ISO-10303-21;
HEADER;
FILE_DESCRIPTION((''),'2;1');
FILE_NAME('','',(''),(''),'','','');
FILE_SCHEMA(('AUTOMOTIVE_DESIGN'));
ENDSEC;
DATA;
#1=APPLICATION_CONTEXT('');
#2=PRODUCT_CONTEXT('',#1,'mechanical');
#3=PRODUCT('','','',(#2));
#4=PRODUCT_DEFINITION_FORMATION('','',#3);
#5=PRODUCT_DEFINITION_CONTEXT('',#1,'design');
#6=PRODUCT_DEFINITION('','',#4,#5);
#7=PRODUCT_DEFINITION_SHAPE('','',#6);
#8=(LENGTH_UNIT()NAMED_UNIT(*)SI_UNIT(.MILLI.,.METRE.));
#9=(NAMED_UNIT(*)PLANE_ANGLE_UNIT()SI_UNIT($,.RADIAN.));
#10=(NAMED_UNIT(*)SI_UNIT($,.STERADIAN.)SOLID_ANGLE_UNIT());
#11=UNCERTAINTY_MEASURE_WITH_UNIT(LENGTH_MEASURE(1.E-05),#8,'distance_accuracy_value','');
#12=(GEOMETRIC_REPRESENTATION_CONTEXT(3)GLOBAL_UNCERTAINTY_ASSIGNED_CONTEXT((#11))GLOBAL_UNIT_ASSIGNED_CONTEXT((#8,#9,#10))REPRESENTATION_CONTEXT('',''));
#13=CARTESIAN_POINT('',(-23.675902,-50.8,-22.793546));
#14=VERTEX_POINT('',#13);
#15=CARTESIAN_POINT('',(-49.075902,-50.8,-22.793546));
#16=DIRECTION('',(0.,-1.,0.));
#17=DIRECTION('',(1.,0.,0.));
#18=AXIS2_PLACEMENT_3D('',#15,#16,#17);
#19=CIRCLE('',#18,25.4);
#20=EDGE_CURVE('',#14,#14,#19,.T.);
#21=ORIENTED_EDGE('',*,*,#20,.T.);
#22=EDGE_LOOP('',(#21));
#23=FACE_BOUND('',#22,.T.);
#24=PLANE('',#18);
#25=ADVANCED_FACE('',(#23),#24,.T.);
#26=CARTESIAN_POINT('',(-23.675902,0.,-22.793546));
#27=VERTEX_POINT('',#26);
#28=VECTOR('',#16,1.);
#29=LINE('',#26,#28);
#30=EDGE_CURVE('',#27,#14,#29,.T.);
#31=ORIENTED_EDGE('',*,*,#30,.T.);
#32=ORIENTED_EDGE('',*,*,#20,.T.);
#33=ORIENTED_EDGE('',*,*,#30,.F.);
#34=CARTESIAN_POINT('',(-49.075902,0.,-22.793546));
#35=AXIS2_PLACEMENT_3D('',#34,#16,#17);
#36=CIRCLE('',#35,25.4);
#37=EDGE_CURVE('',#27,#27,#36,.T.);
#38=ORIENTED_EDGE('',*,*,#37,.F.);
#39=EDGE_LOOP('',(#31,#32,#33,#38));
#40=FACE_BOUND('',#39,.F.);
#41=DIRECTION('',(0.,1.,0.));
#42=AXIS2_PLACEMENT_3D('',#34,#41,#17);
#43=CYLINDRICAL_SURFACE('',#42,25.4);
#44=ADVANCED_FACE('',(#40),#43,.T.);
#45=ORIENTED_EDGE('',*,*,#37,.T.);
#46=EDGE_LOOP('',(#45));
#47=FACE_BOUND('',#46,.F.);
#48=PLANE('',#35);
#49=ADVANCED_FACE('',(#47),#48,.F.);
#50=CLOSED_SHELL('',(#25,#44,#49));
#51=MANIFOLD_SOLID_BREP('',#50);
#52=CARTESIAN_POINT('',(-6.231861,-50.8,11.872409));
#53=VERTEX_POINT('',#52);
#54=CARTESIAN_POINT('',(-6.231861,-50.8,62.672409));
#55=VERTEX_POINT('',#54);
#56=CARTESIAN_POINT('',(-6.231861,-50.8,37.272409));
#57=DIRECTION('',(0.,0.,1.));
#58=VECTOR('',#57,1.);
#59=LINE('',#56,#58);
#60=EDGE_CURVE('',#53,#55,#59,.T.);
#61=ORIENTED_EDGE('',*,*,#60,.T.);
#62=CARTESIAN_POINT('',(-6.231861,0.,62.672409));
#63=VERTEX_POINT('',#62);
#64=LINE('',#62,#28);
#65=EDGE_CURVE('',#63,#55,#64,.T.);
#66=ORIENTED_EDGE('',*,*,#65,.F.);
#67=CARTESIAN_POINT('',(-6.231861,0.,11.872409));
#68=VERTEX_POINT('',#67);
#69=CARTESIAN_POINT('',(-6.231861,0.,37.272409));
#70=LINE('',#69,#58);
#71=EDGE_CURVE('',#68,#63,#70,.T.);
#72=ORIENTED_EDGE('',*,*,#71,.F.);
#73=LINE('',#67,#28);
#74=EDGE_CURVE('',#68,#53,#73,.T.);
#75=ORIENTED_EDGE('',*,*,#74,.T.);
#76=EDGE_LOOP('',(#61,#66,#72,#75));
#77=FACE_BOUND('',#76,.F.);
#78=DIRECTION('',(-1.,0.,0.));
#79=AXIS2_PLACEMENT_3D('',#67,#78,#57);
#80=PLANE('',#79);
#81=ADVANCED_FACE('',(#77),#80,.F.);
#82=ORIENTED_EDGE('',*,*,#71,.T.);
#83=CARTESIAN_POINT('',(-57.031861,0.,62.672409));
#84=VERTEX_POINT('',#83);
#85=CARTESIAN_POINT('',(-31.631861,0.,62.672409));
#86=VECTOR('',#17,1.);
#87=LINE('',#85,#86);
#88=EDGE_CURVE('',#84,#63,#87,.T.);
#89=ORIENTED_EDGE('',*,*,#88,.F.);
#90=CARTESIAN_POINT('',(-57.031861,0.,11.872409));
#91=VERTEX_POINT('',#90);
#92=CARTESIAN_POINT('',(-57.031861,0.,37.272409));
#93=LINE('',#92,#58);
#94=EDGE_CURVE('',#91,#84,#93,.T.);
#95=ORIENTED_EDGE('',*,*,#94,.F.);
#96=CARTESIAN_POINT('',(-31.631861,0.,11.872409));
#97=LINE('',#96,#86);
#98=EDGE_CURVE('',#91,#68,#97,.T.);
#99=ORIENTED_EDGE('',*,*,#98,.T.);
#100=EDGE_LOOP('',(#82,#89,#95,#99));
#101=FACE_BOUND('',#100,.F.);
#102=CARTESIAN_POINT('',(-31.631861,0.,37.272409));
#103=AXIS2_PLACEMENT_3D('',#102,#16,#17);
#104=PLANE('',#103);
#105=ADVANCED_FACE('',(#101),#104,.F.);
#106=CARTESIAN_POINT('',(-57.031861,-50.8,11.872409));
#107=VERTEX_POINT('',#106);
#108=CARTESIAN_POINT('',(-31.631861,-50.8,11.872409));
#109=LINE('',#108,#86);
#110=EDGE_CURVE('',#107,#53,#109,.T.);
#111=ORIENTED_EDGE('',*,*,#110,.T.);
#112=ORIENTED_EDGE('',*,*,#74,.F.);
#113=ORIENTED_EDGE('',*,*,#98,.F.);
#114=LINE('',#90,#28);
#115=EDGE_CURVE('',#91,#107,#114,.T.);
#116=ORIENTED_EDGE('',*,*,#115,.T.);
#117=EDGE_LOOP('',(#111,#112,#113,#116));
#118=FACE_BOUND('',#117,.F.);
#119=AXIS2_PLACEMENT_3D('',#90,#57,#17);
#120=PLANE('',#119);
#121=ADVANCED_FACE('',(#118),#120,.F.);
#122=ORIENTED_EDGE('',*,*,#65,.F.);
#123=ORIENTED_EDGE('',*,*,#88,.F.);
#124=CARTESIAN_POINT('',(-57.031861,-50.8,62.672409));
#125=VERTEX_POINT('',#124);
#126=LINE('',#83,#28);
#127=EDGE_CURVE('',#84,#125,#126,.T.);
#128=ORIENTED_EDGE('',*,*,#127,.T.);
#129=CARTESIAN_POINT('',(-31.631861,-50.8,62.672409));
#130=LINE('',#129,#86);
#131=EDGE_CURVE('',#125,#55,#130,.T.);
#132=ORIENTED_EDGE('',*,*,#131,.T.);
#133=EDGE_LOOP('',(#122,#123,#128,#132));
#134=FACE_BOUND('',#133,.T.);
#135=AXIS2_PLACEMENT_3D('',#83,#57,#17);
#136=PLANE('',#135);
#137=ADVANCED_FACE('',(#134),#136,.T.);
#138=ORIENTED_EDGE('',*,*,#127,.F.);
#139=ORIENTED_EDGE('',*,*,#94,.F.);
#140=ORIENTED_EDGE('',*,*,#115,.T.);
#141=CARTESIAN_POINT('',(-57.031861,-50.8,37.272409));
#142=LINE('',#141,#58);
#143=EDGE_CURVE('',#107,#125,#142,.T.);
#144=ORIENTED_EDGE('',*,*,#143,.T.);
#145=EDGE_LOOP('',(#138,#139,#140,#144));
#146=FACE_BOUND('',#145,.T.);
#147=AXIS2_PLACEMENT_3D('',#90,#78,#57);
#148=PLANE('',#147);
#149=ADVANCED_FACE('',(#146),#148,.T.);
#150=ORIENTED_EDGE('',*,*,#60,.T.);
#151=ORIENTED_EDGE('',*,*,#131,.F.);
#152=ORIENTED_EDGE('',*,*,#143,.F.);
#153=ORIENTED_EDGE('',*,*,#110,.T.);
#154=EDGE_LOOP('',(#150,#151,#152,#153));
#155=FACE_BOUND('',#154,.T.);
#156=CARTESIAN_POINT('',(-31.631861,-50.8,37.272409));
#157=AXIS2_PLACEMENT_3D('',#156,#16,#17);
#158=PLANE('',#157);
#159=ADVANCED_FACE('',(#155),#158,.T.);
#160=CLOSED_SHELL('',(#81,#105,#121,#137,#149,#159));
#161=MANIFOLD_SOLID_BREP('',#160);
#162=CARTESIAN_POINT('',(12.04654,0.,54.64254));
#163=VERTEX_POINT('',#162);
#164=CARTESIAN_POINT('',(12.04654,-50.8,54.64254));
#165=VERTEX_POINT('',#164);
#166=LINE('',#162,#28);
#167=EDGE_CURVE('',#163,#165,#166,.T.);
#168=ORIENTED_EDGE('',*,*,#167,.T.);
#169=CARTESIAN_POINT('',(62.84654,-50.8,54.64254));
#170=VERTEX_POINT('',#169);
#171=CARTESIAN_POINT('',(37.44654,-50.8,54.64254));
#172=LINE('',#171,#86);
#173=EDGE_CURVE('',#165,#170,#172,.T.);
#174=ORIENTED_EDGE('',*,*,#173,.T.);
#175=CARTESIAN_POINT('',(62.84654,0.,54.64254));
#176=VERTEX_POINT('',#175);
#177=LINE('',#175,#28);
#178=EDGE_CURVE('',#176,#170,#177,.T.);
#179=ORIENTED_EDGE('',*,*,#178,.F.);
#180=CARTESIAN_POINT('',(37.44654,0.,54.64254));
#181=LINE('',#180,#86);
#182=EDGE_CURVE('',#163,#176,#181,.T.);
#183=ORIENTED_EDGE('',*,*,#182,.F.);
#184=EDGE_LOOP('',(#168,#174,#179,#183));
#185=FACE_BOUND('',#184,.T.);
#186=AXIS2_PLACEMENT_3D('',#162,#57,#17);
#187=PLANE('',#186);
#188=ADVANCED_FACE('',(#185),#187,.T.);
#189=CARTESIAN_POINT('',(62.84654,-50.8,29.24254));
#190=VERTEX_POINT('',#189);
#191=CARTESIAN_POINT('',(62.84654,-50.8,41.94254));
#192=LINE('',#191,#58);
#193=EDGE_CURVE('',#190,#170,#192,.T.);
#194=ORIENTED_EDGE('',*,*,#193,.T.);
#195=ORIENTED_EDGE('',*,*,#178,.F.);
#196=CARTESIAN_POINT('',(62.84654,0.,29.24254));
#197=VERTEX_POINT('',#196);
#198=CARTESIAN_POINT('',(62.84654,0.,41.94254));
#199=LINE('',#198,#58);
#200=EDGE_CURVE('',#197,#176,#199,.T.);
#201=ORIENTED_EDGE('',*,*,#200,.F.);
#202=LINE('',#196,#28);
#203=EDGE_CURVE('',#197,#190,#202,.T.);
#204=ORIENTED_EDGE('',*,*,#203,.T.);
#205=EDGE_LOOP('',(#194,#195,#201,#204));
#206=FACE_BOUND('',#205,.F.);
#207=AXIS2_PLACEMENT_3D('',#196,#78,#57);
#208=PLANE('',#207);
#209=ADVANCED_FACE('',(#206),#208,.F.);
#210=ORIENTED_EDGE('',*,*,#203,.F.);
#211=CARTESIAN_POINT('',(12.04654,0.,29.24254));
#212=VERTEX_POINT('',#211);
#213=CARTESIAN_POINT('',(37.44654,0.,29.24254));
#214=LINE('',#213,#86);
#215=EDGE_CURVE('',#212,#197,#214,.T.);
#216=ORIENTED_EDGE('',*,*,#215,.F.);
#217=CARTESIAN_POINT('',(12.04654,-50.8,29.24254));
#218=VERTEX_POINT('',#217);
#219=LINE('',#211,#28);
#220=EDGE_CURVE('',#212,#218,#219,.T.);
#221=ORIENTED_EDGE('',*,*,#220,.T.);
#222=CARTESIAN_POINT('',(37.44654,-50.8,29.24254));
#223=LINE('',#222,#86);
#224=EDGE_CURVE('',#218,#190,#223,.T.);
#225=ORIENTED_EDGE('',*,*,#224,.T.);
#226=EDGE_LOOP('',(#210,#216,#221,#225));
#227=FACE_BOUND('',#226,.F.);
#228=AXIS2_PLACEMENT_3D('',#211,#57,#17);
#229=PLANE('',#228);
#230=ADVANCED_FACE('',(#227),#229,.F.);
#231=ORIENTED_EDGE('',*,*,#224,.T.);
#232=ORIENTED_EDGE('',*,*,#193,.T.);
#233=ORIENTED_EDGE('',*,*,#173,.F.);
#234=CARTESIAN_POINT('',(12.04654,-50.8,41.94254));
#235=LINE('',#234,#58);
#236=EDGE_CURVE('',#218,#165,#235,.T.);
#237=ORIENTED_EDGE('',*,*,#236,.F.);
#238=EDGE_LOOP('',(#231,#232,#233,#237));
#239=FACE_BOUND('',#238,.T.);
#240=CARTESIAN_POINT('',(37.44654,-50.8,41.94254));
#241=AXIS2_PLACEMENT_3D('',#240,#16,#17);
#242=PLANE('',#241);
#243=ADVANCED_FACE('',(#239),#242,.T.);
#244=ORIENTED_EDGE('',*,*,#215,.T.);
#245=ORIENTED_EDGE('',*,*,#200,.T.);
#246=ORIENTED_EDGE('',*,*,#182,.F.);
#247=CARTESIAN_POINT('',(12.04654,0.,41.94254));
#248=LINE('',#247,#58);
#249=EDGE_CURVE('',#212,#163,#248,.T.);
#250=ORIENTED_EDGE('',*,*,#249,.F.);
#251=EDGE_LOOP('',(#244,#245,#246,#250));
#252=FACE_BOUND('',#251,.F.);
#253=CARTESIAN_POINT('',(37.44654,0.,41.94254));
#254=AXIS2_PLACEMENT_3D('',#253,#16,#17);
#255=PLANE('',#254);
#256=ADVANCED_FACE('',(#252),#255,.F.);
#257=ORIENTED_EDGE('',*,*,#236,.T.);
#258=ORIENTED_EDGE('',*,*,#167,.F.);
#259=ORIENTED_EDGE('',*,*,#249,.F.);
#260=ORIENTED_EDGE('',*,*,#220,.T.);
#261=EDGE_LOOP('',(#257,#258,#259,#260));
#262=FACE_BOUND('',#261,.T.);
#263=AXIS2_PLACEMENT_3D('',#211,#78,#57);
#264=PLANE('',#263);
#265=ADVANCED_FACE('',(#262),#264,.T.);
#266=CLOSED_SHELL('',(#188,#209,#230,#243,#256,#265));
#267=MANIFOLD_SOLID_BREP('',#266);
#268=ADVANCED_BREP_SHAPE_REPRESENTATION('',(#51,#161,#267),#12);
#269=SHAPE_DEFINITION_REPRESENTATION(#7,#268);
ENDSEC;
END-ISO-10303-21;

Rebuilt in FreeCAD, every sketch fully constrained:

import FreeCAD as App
import Part
import Sketcher
from FreeCAD import Vector
Q = App.Units.Quantity


def add_polygon(sketch, points):
    """Adds a closed chain of lines whose ends are joined by coincident constraints."""
    first, n = sketch.GeometryCount, len(points)
    for a, b in zip(points, points[1:] + points[:1]):
        sketch.addGeometry(Part.LineSegment(App.Vector(*a, 0), App.Vector(*b, 0)), False)
    for i in range(n):
        sketch.addConstraint(Sketcher.Constraint("Coincident", first + i, 2, first + (i + 1) % n, 1))

doc = App.newDocument("Part")
params = doc.addObject("Spreadsheet::Sheet", "Params")
for row, (alias, value) in enumerate([
    ("sketch1_width", "2 in"),
    ("pad1_length", "2 in"),
    ("sketch2_width", "2 in"),
    ("sketch2_height", "1 in"),
    ("pad2_length", "2 in"),
    ("sketch3_diameter", "2 in"),
    ("pad3_length", "2 in"),
], start=1):
    params.set(f"A{row}", alias)
    params.set(f"B{row}", "=" + value)
    params.setAlias(f"B{row}", alias)

body = doc.addObject("PartDesign::Body", "Body")

sketch1 = body.newObject("Sketcher::SketchObject", "Sketch")
sketch1.AttachmentSupport = (doc.getObject("XZ_Plane"), [""])
sketch1.MapMode = "FlatFace"
add_polygon(sketch1, [(-57.031861, 62.672409), (-57.031861, 11.872409), (-6.231861, 11.872409), (-6.231861, 62.672409)])
sketch1.addConstraint(Sketcher.Constraint("Vertical", 0))
sketch1.addConstraint(Sketcher.Constraint("Horizontal", 1))
sketch1.addConstraint(Sketcher.Constraint("Vertical", 2))
sketch1.addConstraint(Sketcher.Constraint("Horizontal", 3))
sketch1.addConstraint(Sketcher.Constraint("Equal", 3, 0))
sketch1.addConstraint(Sketcher.Constraint("DistanceX", 1, 1, 1, 2, Q("2 in")))
sketch1.addConstraint(Sketcher.Constraint("DistanceX", 0, 2, -1, 1, 57.031861))
sketch1.addConstraint(Sketcher.Constraint("DistanceY", -1, 1, 0, 2, 11.872409))
sketch1.setExpression("Constraints[9]", "Params.sketch1_width")
pad1 = body.newObject("PartDesign::Pad", "Pad")
pad1.Profile = sketch1
pad1.setExpression("Length", "Params.pad1_length")
body2 = doc.addObject("PartDesign::Body", "Body001")

sketch2 = body2.newObject("Sketcher::SketchObject", "Sketch001")
sketch2.AttachmentSupport = (doc.getObject("XZ_Plane001"), [""])
sketch2.MapMode = "FlatFace"
add_polygon(sketch2, [(12.04654, 54.64254), (12.04654, 29.24254), (62.84654, 29.24254), (62.84654, 54.64254)])
sketch2.addConstraint(Sketcher.Constraint("Vertical", 0))
sketch2.addConstraint(Sketcher.Constraint("Horizontal", 1))
sketch2.addConstraint(Sketcher.Constraint("Vertical", 2))
sketch2.addConstraint(Sketcher.Constraint("Horizontal", 3))
sketch2.addConstraint(Sketcher.Constraint("DistanceX", 1, 1, 1, 2, Q("2 in")))
sketch2.addConstraint(Sketcher.Constraint("DistanceY", 0, 2, 0, 1, Q("1 in")))
sketch2.addConstraint(Sketcher.Constraint("DistanceX", -1, 1, 0, 2, 12.04654))
sketch2.addConstraint(Sketcher.Constraint("DistanceY", -1, 1, 0, 2, 29.24254))
sketch2.setExpression("Constraints[8]", "Params.sketch2_width")
sketch2.setExpression("Constraints[9]", "Params.sketch2_height")
pad2 = body2.newObject("PartDesign::Pad", "Pad001")
pad2.Profile = sketch2
pad2.setExpression("Length", "Params.pad2_length")
body3 = doc.addObject("PartDesign::Body", "Body002")

sketch3 = body3.newObject("Sketcher::SketchObject", "Sketch002")
sketch3.AttachmentSupport = (doc.getObject("XZ_Plane002"), [""])
sketch3.MapMode = "FlatFace"
sketch3.addGeometry(Part.Circle(Vector(-49.075902, -22.793546, 0), Vector(0, 0, 1), 25.4), False)
sketch3.addConstraint(Sketcher.Constraint("Diameter", 0, Q("2 in")))
sketch3.addConstraint(Sketcher.Constraint("DistanceX", 0, 3, -1, 1, 49.075902))
sketch3.addConstraint(Sketcher.Constraint("DistanceY", 0, 3, -1, 1, 22.793546))
sketch3.setExpression("Constraints[0]", "Params.sketch3_diameter")
pad3 = body3.newObject("PartDesign::Pad", "Pad002")
pad3.Profile = sketch3
pad3.setExpression("Length", "Params.pad3_length")

doc.recompute()
